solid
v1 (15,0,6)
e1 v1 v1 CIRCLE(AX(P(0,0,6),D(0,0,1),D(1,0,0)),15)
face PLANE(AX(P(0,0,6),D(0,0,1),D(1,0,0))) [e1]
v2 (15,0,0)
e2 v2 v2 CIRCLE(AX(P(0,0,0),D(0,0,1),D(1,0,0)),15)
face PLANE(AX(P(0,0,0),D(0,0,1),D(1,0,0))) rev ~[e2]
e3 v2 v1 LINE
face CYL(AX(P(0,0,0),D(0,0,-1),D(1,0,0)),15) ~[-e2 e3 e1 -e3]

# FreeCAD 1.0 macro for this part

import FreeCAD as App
import Part
import Sketcher
Q = App.Units.Quantity

doc = App.newDocument("Part")
params = doc.addObject("Spreadsheet::Sheet", "Params")
for row, (alias, value) in enumerate([
    ("sketch1_diameter", "30 mm"),
    ("pad1_length", "6 mm"),
], start=1):
    params.set(f"A{row}", alias)
    params.set(f"B{row}", "=" + value)
    params.setAlias(f"B{row}", alias)

body = doc.addObject("PartDesign::Body", "Body")

sketch1 = doc.addObject("Sketcher::SketchObject", "Sketch")
body.addObject(sketch1)
sketch1.AttachmentSupport = (doc.XY_Plane, [""])
sketch1.MapMode = "FlatFace"
sketch1.addGeometry(Part.Circle(App.Vector(0, 0, 0), App.Vector(0, 0, 1), 15), False)
sketch1.addConstraint([
    Sketcher.Constraint("Coincident", 0, 3, -1, 1),
    Sketcher.Constraint("Diameter", 0, Q("30 mm")),
])
sketch1.setExpression("Constraints[1]", "Params.sketch1_diameter")
pad1 = doc.addObject("PartDesign::Pad", "Pad")
body.addObject(pad1)
pad1.Profile = sketch1
pad1.setExpression("Length", "Params.pad1_length")

doc.recompute()
